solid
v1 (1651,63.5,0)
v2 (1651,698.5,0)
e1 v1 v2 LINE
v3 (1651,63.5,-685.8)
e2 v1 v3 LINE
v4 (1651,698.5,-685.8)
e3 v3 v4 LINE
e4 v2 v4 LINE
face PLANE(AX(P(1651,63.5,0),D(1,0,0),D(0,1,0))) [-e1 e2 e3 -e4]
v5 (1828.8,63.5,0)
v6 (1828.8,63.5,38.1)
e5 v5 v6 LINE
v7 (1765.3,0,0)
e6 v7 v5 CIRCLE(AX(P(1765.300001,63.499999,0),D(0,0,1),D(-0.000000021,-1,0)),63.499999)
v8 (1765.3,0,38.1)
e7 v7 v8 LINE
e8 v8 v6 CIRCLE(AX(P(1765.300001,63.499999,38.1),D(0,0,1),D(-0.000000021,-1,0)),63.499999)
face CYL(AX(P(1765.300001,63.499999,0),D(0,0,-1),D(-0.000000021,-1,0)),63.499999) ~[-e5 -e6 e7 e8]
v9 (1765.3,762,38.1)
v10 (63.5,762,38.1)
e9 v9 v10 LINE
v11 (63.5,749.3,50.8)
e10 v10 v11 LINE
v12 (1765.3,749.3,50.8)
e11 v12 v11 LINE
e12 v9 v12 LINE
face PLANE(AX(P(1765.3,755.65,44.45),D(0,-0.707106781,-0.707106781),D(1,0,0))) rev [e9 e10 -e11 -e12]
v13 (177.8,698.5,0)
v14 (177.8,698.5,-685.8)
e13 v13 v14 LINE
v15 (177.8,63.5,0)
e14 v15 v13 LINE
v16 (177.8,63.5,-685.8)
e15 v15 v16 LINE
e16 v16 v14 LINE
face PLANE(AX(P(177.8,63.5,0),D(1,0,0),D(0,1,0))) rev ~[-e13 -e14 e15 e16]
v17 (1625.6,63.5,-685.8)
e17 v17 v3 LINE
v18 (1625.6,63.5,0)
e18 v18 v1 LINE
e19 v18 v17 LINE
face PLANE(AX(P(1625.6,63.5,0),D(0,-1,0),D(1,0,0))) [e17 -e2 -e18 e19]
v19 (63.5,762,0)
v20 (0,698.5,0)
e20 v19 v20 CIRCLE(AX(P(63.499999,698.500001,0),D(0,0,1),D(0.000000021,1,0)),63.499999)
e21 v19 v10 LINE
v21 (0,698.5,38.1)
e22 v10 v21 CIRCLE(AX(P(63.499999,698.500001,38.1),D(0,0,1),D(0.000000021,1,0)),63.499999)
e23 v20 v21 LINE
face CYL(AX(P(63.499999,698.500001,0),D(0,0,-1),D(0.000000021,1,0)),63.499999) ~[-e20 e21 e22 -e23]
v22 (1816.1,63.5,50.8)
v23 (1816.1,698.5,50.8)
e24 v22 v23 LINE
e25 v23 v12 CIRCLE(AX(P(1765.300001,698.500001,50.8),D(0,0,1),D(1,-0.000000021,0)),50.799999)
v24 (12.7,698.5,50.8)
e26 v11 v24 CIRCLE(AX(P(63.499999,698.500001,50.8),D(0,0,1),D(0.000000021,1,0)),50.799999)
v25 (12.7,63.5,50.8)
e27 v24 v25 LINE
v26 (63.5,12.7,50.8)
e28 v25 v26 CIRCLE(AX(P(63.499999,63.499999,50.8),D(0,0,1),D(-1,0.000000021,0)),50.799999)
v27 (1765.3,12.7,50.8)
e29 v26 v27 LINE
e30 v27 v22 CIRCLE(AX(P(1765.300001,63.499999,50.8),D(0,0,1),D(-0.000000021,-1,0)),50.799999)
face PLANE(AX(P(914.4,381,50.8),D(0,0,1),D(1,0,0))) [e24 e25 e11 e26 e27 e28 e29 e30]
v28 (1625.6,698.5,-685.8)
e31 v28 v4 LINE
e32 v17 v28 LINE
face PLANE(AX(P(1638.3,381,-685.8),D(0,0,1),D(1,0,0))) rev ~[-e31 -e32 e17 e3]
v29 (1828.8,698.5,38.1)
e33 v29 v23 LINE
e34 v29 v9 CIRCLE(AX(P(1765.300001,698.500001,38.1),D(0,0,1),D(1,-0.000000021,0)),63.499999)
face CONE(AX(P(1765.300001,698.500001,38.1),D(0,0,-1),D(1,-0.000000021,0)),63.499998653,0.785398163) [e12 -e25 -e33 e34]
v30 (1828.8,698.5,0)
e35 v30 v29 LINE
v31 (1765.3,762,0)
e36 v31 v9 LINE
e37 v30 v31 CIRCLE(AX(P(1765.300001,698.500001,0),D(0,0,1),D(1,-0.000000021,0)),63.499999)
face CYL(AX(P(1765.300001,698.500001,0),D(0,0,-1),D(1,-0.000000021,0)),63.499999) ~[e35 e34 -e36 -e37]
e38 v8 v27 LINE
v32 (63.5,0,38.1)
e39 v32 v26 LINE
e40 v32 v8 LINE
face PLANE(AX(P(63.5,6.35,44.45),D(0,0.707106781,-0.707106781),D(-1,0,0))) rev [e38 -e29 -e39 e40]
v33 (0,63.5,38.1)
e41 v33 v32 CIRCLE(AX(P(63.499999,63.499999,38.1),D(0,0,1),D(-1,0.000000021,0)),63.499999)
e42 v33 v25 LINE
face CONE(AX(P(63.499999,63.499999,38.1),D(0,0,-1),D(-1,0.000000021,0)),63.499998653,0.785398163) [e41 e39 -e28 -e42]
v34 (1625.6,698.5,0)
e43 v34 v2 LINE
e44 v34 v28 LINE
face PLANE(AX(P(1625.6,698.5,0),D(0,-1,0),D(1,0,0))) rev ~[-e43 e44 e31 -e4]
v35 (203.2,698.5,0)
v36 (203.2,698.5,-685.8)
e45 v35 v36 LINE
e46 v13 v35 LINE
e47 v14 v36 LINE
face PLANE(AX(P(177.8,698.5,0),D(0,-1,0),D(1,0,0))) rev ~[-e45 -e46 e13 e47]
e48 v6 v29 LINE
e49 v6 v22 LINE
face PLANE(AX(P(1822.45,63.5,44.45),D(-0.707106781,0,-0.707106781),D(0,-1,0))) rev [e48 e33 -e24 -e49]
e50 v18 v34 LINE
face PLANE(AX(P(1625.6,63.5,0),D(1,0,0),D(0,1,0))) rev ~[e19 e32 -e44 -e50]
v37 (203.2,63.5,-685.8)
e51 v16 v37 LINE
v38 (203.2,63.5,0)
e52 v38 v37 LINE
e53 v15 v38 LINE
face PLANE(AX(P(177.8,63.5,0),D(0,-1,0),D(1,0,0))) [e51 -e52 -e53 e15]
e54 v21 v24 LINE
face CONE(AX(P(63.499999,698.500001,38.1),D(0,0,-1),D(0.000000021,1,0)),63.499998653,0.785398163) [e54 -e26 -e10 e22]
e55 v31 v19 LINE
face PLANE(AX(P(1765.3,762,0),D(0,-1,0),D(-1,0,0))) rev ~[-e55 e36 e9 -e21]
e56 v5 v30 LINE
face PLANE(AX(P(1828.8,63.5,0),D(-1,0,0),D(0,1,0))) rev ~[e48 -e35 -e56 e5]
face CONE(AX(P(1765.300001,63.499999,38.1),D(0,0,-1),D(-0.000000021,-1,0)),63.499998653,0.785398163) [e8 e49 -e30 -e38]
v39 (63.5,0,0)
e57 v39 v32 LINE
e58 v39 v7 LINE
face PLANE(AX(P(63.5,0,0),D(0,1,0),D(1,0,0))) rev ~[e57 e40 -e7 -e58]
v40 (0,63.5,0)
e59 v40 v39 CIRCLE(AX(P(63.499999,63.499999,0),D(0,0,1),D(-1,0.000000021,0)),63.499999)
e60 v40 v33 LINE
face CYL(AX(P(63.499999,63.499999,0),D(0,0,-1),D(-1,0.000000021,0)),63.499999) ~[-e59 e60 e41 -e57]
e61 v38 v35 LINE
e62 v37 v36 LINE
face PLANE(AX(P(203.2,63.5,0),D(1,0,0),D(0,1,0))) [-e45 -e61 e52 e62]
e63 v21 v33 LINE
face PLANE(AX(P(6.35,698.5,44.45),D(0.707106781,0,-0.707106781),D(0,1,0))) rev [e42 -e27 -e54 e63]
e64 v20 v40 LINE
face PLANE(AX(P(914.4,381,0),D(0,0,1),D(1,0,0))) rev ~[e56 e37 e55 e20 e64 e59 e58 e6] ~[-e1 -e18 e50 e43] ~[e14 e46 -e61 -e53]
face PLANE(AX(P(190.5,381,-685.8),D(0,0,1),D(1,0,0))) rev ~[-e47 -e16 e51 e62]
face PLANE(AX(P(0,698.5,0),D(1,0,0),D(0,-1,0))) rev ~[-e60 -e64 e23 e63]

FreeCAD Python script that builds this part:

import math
import FreeCAD as App
import Part
import Sketcher
from FreeCAD import Vector
Q = App.Units.Quantity


def edges_at(feature, points):
    """Names of the edges that pass closest to the given points."""
    edges = feature.Shape.Edges
    near = lambda p: min(range(len(edges)), key=lambda i: edges[i].distToShape(Part.Vertex(*p))[0])
    return sorted({f"Edge{near(p) + 1}" for p in points})


def add_polygon(sketch, points):
    """Adds a closed chain of lines whose ends are joined by coincident constraints."""
    first, n = sketch.GeometryCount, len(points)
    for a, b in zip(points, points[1:] + points[:1]):
        sketch.addGeometry(Part.LineSegment(App.Vector(*a, 0), App.Vector(*b, 0)), False)
    for i in range(n):
        sketch.addConstraint(Sketcher.Constraint("Coincident", first + i, 2, first + (i + 1) % n, 1))

doc = App.newDocument("Part")
body = doc.addObject("PartDesign::Body", "Body")

# Sketch on XY plane
sketch1 = body.newObject("Sketcher::SketchObject", "Sketch")
sketch1.AttachmentSupport = (doc.getObject("XY_Plane"), [""])
sketch1.MapMode = "FlatFace"
sketch1.addGeometry(Part.ArcOfCircle(Part.Circle(Vector(63, 63, 0), Vector(0, 0, 1), 63), math.radians(180), math.radians(270)), False)
sketch1.addGeometry(Part.LineSegment(Vector(64, 0, 0), Vector(1765, 0, 0)), False)
sketch1.addGeometry(Part.ArcOfCircle(Part.Circle(Vector(1765, 63, 0), Vector(0, 0, 1), 63), math.radians(-90), math.radians(0)), False)
sketch1.addGeometry(Part.LineSegment(Vector(1829, 64, 0), Vector(1829, 698, 0)), False)
sketch1.addGeometry(Part.ArcOfCircle(Part.Circle(Vector(1765, 699, 0), Vector(0, 0, 1), 63), math.radians(0), math.radians(90)), False)
sketch1.addGeometry(Part.LineSegment(Vector(1765, 762, 0), Vector(64, 762, 0)), False)
sketch1.addGeometry(Part.ArcOfCircle(Part.Circle(Vector(63, 699, 0), Vector(0, 0, 1), 63), math.radians(90), math.radians(180)), False)
sketch1.addGeometry(Part.LineSegment(Vector(0, 698, 0), Vector(0, 64, 0)), False)
sketch1.addConstraint(Sketcher.Constraint("Tangent", 0, 2, 1, 1))
sketch1.addConstraint(Sketcher.Constraint("Tangent", 1, 2, 2, 1))
sketch1.addConstraint(Sketcher.Constraint("Tangent", 2, 2, 3, 1))
sketch1.addConstraint(Sketcher.Constraint("Tangent", 3, 2, 4, 1))
sketch1.addConstraint(Sketcher.Constraint("Tangent", 4, 2, 5, 1))
sketch1.addConstraint(Sketcher.Constraint("Tangent", 5, 2, 6, 1))
sketch1.addConstraint(Sketcher.Constraint("Tangent", 6, 2, 7, 1))
sketch1.addConstraint(Sketcher.Constraint("Tangent", 7, 2, 0, 1))
sketch1.addConstraint(Sketcher.Constraint("Horizontal", 1))
sketch1.addConstraint(Sketcher.Constraint("Vertical", 3))
sketch1.addConstraint(Sketcher.Constraint("Horizontal", 5))
sketch1.addConstraint(Sketcher.Constraint("Vertical", 7))
sketch1.addConstraint(Sketcher.Constraint("Equal", 0, 2))
sketch1.addConstraint(Sketcher.Constraint("Equal", 2, 4))
sketch1.addConstraint(Sketcher.Constraint("Equal", 4, 6))
sketch1.addConstraint(Sketcher.Constraint("PointOnObject", 0, 2, -1))
sketch1.addConstraint(Sketcher.Constraint("PointOnObject", 6, 2, -2))
sketch1.addConstraint(Sketcher.Constraint("Radius", 0, Q("2.4999999 in")))
sketch1.addConstraint(Sketcher.Constraint("DistanceX", 1, 1, 1, 2, Q("67 in")))
sketch1.addConstraint(Sketcher.Constraint("DistanceY", 3, 1, 3, 2, Q("25 in")))
pad1 = body.newObject("PartDesign::Pad", "Pad")
pad1.Profile = sketch1
pad1.Length = Q("2 in")
doc.recompute()

chamfer = body.newObject("PartDesign::Chamfer", "Chamfer")
chamfer.Base = (pad1, edges_at(pad1, [(0, 381, 50.8)]))
chamfer.Size = Q("0.5 in")

# Sketch on XY plane
sketch2 = body.newObject("Sketcher::SketchObject", "Sketch001")
sketch2.AttachmentSupport = (doc.getObject("XY_Plane"), [""])
sketch2.MapMode = "FlatFace"
add_polygon(sketch2, [(178, 698), (178, 64), (203, 64), (203, 698)])  # lines 0-3
add_polygon(sketch2, [(1626, 698), (1626, 64), (1651, 64), (1651, 698)])  # lines 4-7
sketch2.addConstraint(Sketcher.Constraint("Vertical", 0))
sketch2.addConstraint(Sketcher.Constraint("Horizontal", 1))
sketch2.addConstraint(Sketcher.Constraint("Vertical", 2))
sketch2.addConstraint(Sketcher.Constraint("Horizontal", 3))
sketch2.addConstraint(Sketcher.Constraint("Vertical", 4))
sketch2.addConstraint(Sketcher.Constraint("Horizontal", 5))
sketch2.addConstraint(Sketcher.Constraint("Vertical", 6))
sketch2.addConstraint(Sketcher.Constraint("Horizontal", 7))
sketch2.addConstraint(Sketcher.Constraint("Horizontal", 1, 2, 4, 2))
sketch2.addConstraint(Sketcher.Constraint("Horizontal", 3, 2, 6, 2))
sketch2.addConstraint(Sketcher.Constraint("Equal", 3, 5))
sketch2.addConstraint(Sketcher.Constraint("DistanceX", 1, 1, 1, 2, Q("1 in")))
sketch2.addConstraint(Sketcher.Constraint("DistanceY", 0, 2, 0, 1, Q("25 in")))
sketch2.addConstraint(Sketcher.Constraint("DistanceX", -1, 1, 0, 2, Q("7 in")))
sketch2.addConstraint(Sketcher.Constraint("DistanceX", -1, 1, 4, 2, Q("64 in")))
sketch2.addConstraint(Sketcher.Constraint("DistanceY", -1, 1, 0, 2, Q("2.5 in")))
pad2 = body.newObject("PartDesign::Pad", "Pad001")
pad2.Profile = sketch2
pad2.Length = Q("27 in")
pad2.Reversed = True

doc.recompute()
